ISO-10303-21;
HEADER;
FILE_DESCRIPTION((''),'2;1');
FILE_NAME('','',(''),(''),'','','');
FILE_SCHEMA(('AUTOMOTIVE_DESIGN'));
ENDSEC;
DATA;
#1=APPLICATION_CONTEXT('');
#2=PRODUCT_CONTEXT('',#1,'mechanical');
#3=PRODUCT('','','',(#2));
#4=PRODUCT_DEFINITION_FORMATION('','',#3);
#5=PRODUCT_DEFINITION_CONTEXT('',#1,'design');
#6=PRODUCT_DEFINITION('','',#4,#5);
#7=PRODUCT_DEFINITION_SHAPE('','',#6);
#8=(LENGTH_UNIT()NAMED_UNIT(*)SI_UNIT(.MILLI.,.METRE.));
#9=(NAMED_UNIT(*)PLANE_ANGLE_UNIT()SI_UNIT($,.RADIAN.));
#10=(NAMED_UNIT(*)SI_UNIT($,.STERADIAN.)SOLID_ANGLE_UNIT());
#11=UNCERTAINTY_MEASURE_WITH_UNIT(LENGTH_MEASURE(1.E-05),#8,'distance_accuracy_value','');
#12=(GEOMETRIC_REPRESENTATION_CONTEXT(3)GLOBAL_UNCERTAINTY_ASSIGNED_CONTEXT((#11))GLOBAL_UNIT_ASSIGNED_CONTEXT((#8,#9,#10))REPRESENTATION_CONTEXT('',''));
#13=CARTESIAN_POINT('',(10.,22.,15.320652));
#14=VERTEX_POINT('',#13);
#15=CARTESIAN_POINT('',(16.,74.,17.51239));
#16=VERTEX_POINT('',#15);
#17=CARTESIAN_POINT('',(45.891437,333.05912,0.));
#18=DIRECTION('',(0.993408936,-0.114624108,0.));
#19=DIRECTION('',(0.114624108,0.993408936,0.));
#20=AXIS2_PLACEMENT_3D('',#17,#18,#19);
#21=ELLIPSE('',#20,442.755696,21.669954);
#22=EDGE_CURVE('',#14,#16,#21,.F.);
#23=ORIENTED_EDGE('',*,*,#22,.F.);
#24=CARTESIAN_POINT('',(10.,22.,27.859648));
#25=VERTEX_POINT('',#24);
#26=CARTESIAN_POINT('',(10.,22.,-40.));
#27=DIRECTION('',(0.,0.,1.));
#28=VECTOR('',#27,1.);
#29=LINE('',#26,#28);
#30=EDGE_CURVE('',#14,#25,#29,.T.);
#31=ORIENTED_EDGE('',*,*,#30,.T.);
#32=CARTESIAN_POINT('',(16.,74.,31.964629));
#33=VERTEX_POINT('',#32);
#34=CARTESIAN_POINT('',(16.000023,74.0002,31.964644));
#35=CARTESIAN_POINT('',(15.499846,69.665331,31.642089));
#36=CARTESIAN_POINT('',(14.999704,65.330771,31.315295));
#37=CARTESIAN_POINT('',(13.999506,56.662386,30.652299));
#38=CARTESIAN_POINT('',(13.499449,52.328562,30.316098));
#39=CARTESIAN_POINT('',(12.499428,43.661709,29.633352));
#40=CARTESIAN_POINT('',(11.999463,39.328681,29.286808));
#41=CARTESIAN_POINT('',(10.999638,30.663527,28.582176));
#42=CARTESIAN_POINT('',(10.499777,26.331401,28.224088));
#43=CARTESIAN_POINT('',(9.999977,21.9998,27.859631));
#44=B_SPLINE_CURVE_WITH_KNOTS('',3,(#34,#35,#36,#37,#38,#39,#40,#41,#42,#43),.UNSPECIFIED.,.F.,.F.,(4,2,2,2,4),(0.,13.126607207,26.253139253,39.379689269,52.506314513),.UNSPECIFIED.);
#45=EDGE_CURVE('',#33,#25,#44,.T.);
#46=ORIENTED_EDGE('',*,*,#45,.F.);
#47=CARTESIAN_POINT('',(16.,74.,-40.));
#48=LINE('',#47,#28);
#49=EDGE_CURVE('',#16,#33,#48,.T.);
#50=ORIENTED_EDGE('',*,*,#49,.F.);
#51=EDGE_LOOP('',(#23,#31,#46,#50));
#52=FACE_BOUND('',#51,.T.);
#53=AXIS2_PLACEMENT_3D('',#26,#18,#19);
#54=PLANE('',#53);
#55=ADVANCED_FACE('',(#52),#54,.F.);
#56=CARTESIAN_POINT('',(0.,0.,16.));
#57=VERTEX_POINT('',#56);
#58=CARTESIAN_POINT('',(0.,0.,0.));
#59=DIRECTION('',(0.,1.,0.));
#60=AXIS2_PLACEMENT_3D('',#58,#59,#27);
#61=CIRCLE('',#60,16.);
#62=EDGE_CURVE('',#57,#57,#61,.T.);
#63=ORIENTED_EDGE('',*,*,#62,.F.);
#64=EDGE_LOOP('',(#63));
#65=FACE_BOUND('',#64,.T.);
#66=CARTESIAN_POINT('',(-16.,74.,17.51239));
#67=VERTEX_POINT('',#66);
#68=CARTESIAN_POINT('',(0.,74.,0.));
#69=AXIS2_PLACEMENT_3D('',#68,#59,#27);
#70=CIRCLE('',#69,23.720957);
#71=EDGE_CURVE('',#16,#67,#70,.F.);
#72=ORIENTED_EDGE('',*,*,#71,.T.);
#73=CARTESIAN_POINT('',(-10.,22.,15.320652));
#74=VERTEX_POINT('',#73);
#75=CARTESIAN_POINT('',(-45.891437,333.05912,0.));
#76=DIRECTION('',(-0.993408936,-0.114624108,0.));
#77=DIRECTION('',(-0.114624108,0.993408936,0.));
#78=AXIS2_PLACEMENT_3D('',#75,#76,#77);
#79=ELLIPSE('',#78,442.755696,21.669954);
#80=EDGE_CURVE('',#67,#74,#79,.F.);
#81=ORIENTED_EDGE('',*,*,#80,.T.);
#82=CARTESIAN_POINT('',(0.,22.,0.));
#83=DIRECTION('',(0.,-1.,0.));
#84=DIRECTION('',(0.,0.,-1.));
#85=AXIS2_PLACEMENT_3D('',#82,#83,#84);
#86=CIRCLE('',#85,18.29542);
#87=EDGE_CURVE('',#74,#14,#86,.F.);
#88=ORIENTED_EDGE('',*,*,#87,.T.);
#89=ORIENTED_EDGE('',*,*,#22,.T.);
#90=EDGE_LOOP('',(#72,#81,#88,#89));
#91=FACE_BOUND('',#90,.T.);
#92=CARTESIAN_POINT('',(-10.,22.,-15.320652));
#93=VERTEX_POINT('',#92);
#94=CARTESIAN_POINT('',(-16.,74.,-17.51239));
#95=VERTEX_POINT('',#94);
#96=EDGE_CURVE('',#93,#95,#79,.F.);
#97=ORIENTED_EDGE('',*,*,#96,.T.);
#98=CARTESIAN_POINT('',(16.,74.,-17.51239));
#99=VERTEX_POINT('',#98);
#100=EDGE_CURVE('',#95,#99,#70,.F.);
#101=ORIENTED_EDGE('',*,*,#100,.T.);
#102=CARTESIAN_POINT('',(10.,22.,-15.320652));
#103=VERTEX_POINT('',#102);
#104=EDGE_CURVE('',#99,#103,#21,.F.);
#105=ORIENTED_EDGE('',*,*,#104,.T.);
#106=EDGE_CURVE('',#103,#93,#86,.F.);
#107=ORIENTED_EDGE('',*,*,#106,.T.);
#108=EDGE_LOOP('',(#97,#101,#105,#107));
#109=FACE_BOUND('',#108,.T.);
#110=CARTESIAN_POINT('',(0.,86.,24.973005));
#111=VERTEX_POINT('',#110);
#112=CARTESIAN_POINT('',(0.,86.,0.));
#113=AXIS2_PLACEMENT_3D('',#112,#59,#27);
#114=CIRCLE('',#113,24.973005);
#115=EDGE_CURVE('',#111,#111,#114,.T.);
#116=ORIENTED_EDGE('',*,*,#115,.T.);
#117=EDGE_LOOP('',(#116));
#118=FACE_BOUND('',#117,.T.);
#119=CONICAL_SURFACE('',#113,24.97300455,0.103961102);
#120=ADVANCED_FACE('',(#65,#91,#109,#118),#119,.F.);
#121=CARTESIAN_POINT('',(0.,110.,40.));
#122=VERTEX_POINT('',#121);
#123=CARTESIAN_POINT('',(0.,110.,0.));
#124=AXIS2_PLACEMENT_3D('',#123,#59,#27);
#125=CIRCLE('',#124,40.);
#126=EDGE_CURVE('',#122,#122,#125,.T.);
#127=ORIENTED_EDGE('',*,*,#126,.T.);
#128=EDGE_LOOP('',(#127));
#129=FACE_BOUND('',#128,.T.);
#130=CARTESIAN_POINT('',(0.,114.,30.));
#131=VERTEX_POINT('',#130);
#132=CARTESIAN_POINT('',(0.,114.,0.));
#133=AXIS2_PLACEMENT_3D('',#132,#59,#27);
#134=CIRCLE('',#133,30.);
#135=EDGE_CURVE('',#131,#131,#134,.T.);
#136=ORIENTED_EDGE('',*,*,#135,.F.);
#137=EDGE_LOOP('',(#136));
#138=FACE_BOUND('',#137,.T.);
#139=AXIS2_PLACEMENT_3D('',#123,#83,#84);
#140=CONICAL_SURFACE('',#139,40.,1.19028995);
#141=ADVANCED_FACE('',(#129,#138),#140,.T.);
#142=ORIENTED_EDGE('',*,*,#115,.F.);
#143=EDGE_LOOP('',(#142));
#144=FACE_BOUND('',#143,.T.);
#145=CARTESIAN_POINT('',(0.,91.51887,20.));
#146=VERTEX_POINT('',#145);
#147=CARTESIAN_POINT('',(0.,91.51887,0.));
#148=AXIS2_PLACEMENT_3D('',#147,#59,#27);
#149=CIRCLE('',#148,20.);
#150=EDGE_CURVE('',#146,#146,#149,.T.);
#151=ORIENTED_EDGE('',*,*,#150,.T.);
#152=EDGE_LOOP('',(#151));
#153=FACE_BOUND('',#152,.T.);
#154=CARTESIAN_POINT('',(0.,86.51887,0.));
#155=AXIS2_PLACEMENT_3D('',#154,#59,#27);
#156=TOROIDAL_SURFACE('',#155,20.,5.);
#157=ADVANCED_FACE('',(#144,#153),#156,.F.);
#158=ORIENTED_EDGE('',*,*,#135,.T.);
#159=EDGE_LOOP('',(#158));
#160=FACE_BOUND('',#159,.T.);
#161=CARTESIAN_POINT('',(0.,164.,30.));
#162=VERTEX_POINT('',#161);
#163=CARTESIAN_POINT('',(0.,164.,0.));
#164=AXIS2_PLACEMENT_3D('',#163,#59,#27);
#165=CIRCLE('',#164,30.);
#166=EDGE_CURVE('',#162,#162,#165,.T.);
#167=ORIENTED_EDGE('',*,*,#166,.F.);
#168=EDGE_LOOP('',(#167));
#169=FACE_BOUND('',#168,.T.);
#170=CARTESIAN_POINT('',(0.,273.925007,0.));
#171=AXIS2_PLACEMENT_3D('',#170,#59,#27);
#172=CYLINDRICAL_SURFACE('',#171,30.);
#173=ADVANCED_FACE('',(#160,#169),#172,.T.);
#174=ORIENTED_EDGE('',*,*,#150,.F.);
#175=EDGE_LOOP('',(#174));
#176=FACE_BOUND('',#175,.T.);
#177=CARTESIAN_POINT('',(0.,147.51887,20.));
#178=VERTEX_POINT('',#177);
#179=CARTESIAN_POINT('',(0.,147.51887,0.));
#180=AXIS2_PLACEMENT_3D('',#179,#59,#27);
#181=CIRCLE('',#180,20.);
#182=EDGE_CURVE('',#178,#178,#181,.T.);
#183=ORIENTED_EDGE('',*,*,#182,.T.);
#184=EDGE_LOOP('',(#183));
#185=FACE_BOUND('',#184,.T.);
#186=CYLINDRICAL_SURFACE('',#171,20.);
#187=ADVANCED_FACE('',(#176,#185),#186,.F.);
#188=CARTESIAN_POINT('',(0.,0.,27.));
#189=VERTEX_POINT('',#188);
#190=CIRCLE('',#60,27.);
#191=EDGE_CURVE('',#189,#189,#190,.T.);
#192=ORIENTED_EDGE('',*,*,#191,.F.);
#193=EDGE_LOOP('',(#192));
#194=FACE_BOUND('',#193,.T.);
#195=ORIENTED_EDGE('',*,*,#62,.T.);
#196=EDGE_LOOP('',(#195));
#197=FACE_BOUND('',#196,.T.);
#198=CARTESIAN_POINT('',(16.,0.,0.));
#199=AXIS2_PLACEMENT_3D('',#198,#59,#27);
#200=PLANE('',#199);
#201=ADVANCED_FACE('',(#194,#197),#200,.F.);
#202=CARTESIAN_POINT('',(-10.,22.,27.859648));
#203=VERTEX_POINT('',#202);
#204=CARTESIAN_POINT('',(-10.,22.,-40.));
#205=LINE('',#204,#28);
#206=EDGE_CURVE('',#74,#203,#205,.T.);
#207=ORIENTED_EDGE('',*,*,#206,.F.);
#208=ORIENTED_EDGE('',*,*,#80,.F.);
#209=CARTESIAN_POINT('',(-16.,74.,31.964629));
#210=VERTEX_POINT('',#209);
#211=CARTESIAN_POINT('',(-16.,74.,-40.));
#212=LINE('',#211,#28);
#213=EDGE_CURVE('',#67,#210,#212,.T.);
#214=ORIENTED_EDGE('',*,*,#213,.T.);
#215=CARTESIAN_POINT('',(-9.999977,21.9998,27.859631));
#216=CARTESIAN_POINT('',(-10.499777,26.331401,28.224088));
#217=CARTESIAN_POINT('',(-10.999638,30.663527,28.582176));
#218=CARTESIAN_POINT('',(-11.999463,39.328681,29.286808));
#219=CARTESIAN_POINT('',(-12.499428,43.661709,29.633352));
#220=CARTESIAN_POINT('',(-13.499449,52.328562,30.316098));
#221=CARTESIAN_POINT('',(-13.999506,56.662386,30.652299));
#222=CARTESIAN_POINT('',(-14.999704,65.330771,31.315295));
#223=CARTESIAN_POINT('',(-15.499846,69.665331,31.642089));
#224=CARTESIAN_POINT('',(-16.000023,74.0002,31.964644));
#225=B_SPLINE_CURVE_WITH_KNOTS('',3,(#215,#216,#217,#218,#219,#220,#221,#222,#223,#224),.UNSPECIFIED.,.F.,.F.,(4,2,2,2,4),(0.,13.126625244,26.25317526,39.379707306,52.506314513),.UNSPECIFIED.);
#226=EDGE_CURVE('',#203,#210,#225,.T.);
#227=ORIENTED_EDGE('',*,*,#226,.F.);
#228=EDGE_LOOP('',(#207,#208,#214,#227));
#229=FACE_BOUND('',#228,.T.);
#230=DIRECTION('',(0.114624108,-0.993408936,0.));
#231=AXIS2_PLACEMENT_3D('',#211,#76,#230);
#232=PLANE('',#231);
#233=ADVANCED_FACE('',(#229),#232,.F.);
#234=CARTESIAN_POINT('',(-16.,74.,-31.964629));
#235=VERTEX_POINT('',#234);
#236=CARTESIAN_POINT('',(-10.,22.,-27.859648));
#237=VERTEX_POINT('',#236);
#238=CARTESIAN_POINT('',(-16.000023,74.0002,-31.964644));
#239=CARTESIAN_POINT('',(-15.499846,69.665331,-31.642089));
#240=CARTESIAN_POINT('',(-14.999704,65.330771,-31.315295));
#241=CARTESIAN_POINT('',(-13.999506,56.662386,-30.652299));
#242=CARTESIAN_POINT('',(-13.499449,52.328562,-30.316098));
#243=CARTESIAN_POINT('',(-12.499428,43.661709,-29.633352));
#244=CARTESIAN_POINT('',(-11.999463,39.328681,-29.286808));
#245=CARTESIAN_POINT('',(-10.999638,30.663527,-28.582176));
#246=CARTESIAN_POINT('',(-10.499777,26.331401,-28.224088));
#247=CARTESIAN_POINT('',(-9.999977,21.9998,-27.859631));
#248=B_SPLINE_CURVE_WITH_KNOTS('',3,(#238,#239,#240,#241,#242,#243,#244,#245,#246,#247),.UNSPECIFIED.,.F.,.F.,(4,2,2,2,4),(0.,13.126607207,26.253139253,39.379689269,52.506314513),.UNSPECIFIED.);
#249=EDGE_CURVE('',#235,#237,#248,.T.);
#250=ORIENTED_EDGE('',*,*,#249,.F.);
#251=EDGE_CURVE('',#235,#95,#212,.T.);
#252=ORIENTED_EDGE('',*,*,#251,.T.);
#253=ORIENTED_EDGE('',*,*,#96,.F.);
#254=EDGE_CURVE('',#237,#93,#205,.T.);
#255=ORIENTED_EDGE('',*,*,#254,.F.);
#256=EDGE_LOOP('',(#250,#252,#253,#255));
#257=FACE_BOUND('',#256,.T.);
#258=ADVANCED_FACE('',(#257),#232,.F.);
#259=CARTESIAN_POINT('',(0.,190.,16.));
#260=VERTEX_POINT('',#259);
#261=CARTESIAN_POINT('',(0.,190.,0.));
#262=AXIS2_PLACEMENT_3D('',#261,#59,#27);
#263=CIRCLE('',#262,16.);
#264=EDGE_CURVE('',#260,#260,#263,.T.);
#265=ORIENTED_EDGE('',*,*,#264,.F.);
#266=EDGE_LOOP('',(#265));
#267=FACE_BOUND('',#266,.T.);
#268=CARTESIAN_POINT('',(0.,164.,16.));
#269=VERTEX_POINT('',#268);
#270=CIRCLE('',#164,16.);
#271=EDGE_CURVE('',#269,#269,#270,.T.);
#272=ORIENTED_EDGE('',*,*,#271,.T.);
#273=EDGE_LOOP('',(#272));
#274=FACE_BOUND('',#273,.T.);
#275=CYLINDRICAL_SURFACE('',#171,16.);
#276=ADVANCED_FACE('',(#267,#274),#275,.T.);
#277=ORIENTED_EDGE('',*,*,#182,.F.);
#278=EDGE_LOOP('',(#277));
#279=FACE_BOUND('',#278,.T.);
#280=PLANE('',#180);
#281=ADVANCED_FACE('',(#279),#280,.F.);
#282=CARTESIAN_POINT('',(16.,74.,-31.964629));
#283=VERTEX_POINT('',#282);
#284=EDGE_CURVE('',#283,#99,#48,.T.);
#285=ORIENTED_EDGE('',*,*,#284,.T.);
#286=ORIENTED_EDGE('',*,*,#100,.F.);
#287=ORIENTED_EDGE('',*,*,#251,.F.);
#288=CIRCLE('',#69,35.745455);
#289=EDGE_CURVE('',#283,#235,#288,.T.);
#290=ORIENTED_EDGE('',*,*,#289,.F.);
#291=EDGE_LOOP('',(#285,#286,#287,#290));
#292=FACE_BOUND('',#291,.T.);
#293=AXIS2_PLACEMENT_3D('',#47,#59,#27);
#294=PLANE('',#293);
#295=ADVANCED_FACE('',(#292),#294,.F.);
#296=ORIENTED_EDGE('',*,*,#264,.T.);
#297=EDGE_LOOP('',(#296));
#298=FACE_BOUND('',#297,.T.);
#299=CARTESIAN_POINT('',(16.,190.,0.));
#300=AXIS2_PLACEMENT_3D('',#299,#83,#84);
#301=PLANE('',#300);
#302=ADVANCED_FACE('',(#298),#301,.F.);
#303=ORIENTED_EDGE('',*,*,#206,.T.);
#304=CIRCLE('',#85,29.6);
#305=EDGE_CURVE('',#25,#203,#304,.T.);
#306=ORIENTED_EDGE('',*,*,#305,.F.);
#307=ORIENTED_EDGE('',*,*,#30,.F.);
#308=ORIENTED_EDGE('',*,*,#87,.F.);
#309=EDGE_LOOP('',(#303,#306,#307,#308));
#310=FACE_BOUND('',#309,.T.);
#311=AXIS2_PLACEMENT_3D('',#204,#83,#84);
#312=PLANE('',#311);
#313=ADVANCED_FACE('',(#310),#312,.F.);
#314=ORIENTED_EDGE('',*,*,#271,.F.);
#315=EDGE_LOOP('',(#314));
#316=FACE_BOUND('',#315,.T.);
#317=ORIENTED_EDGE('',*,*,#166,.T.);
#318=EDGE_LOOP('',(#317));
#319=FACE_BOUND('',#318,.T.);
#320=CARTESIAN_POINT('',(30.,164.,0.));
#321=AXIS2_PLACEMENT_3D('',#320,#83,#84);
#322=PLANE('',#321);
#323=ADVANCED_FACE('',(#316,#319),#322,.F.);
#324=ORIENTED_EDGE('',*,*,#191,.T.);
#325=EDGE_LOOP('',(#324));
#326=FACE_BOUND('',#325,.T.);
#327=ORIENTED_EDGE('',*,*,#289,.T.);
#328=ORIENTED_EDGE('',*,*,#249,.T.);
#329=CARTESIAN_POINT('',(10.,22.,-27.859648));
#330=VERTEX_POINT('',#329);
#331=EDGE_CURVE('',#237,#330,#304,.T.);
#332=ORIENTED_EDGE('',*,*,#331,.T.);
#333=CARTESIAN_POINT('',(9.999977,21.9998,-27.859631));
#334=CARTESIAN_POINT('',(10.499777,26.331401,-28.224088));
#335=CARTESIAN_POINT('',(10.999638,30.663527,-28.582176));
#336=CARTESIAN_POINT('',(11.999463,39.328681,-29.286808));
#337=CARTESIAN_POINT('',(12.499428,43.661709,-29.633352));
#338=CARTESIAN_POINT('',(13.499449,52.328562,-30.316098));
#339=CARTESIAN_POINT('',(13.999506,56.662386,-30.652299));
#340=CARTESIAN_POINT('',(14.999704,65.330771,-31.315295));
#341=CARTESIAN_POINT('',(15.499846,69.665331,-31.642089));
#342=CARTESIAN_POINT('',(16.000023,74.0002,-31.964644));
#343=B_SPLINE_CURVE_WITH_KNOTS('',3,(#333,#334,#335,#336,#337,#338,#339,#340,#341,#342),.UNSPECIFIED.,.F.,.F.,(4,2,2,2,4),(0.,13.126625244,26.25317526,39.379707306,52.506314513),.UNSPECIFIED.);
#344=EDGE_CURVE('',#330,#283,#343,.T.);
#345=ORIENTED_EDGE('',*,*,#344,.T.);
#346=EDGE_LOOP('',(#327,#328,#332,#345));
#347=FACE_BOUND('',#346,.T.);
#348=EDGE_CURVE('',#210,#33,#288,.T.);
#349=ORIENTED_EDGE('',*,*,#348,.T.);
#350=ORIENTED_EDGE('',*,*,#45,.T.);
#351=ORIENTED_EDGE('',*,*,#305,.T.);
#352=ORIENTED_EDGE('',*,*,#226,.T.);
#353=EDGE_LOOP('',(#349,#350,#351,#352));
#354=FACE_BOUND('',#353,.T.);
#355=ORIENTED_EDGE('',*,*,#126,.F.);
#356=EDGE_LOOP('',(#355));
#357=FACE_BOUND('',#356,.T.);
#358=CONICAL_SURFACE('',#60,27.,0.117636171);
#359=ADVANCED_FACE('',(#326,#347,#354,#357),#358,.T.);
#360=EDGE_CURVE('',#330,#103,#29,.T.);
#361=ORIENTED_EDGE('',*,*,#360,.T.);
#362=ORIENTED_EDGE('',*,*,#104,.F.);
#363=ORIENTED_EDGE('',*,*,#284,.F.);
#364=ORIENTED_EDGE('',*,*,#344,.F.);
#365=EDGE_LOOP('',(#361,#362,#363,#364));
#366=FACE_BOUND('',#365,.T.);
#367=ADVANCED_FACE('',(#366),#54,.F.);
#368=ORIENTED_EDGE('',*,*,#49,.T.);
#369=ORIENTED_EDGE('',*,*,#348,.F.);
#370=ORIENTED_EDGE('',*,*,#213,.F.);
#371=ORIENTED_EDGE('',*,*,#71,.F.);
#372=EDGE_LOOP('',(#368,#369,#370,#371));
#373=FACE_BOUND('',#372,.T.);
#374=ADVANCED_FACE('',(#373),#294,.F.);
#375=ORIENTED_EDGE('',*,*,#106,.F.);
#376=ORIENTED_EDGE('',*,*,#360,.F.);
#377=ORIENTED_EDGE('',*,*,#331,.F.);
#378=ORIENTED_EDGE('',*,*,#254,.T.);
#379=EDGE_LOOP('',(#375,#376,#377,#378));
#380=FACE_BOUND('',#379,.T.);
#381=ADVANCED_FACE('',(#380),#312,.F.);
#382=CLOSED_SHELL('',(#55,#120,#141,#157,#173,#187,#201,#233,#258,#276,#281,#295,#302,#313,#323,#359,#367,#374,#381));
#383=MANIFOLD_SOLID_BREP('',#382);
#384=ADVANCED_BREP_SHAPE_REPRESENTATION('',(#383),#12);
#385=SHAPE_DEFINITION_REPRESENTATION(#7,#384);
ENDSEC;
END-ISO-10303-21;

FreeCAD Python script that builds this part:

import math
import FreeCAD as App
import Part
import Sketcher
from FreeCAD import Vector

doc = App.newDocument("Part")
body = doc.addObject("PartDesign::Body", "Body")

# Sketch on XY plane
sketch1 = body.newObject("Sketcher::SketchObject", "Sketch")
sketch1.AttachmentSupport = (doc.getObject("XY_Plane"), [""])
sketch1.MapMode = "FlatFace"
sketch1.addGeometry([
    Part.LineSegment(Vector(16, 0, 0), Vector(27, 0, 0)),  # 0
    Part.LineSegment(Vector(27, 0, 0), Vector(40, 110, 0)),  # 1
    Part.LineSegment(Vector(40, 110, 0), Vector(30, 114, 0)),  # 2
    Part.LineSegment(Vector(30, 114, 0), Vector(30, 164, 0)),  # 3
    Part.LineSegment(Vector(30, 164, 0), Vector(16, 164, 0)),  # 4
    Part.LineSegment(Vector(16, 164, 0), Vector(16, 190, 0)),  # 5
    Part.LineSegment(Vector(16, 190, 0), Vector(0, 190, 0)),  # 6
    Part.LineSegment(Vector(0, 190, 0), Vector(0, 148, 0)),  # 7
    Part.LineSegment(Vector(0, 148, 0), Vector(20, 148, 0)),  # 8
    Part.LineSegment(Vector(20, 148, 0), Vector(20, 92, 0)),  # 9
    Part.ArcOfCircle(Part.Circle(Vector(20, 87, 0), Vector(0, 0, 1), 5), math.radians(-6), math.radians(90)),  # 10
    Part.LineSegment(Vector(25, 86, 0), Vector(16, 0, 0)),  # 11
], False)
sketch1.addConstraint([
    Sketcher.Constraint("Coincident", 0, 2, 1, 1),
    Sketcher.Constraint("Coincident", 1, 2, 2, 1),
    Sketcher.Constraint("Coincident", 2, 2, 3, 1),
    Sketcher.Constraint("Coincident", 3, 2, 4, 1),
    Sketcher.Constraint("Coincident", 4, 2, 5, 1),
    Sketcher.Constraint("Coincident", 5, 2, 6, 1),
    Sketcher.Constraint("Coincident", 6, 2, 7, 1),
    Sketcher.Constraint("Coincident", 7, 2, 8, 1),
    Sketcher.Constraint("Coincident", 8, 2, 9, 1),
    Sketcher.Constraint("Coincident", 9, 2, 10, 2),
    Sketcher.Constraint("Tangent", 10, 1, 11, 1),
    Sketcher.Constraint("Coincident", 11, 2, 0, 1),
    Sketcher.Constraint("Horizontal", 0),
    Sketcher.Constraint("Vertical", 3),
    Sketcher.Constraint("Horizontal", 4),
    Sketcher.Constraint("Vertical", 5),
    Sketcher.Constraint("Horizontal", 6),
    Sketcher.Constraint("Vertical", 7),
    Sketcher.Constraint("Horizontal", 8),
    Sketcher.Constraint("Vertical", 9),
    Sketcher.Constraint("PointOnObject", 0, 2, -1),
    Sketcher.Constraint("PointOnObject", 6, 2, -2),
    Sketcher.Constraint("Vertical", 10, 3, 8, 2),
    Sketcher.Constraint("Vertical", 5, 2, 11, 2),
    Sketcher.Constraint("Radius", 10, 5.0),
    Sketcher.Constraint("DistanceX", 0, 1, 0, 2, 11.0),
    Sketcher.Constraint("DistanceX", 4, 2, 4, 1, 14.0),
    Sketcher.Constraint("DistanceX", 6, 2, 6, 1, 16.0),
    Sketcher.Constraint("DistanceX", 8, 1, 8, 2, 20.0),
    Sketcher.Constraint("DistanceY", 3, 1, 3, 2, 50.0),
    Sketcher.Constraint("DistanceY", 5, 1, 5, 2, 26.0),
    Sketcher.Constraint("DistanceY", 9, 2, 9, 1, 56.0),
    Sketcher.Constraint("DistanceX", -1, 1, 1, 2, 40.0),
    Sketcher.Constraint("DistanceY", -1, 1, 1, 2, 110.0),
    Sketcher.Constraint("DistanceY", -1, 1, 2, 2, 114.0),
    Sketcher.Constraint("DistanceY", -1, 1, 10, 1, 86.0),
])
revolution = body.newObject("PartDesign::Revolution", "Revolution")
revolution.Profile = sketch1
revolution.ReferenceAxis = (sketch1, ["V_Axis"])
revolution.Angle = 360

# Sketch on XY plane
sketch2 = body.newObject("Sketcher::SketchObject", "Sketch001")
sketch2.AttachmentSupport = (doc.getObject("XY_Plane"), [""])
sketch2.MapMode = "FlatFace"
sketch2.addGeometry([
    Part.LineSegment(Vector(-10, 22, 0), Vector(10, 22, 0)),
    Part.LineSegment(Vector(10, 22, 0), Vector(16, 74, 0)),
    Part.LineSegment(Vector(16, 74, 0), Vector(-16, 74, 0)),
    Part.LineSegment(Vector(-16, 74, 0), Vector(-10, 22, 0)),
], False)
sketch2.addConstraint([
    Sketcher.Constraint("Coincident", 0, 2, 1, 1),
    Sketcher.Constraint("Coincident", 1, 2, 2, 1),
    Sketcher.Constraint("Coincident", 2, 2, 3, 1),
    Sketcher.Constraint("Coincident", 3, 2, 0, 1),
    Sketcher.Constraint("Horizontal", 0),
    Sketcher.Constraint("Horizontal", 2),
    Sketcher.Constraint("Equal", 1, 3),
    Sketcher.Constraint("DistanceX", 0, 1, 0, 2, 20.0),
    Sketcher.Constraint("DistanceX", 2, 2, 2, 1, 32.0),
    Sketcher.Constraint("DistanceX", -1, 1, 0, 2, 10.0),
    Sketcher.Constraint("DistanceY", -1, 1, 0, 2, 22.0),
    Sketcher.Constraint("DistanceY", -1, 1, 1, 2, 74.0),
])
pocket1 = body.newObject("PartDesign::Pocket", "Pocket")
pocket1.Profile = sketch2
pocket1.Type = "ThroughAll"
pocket1.Midplane = True

doc.recompute()
